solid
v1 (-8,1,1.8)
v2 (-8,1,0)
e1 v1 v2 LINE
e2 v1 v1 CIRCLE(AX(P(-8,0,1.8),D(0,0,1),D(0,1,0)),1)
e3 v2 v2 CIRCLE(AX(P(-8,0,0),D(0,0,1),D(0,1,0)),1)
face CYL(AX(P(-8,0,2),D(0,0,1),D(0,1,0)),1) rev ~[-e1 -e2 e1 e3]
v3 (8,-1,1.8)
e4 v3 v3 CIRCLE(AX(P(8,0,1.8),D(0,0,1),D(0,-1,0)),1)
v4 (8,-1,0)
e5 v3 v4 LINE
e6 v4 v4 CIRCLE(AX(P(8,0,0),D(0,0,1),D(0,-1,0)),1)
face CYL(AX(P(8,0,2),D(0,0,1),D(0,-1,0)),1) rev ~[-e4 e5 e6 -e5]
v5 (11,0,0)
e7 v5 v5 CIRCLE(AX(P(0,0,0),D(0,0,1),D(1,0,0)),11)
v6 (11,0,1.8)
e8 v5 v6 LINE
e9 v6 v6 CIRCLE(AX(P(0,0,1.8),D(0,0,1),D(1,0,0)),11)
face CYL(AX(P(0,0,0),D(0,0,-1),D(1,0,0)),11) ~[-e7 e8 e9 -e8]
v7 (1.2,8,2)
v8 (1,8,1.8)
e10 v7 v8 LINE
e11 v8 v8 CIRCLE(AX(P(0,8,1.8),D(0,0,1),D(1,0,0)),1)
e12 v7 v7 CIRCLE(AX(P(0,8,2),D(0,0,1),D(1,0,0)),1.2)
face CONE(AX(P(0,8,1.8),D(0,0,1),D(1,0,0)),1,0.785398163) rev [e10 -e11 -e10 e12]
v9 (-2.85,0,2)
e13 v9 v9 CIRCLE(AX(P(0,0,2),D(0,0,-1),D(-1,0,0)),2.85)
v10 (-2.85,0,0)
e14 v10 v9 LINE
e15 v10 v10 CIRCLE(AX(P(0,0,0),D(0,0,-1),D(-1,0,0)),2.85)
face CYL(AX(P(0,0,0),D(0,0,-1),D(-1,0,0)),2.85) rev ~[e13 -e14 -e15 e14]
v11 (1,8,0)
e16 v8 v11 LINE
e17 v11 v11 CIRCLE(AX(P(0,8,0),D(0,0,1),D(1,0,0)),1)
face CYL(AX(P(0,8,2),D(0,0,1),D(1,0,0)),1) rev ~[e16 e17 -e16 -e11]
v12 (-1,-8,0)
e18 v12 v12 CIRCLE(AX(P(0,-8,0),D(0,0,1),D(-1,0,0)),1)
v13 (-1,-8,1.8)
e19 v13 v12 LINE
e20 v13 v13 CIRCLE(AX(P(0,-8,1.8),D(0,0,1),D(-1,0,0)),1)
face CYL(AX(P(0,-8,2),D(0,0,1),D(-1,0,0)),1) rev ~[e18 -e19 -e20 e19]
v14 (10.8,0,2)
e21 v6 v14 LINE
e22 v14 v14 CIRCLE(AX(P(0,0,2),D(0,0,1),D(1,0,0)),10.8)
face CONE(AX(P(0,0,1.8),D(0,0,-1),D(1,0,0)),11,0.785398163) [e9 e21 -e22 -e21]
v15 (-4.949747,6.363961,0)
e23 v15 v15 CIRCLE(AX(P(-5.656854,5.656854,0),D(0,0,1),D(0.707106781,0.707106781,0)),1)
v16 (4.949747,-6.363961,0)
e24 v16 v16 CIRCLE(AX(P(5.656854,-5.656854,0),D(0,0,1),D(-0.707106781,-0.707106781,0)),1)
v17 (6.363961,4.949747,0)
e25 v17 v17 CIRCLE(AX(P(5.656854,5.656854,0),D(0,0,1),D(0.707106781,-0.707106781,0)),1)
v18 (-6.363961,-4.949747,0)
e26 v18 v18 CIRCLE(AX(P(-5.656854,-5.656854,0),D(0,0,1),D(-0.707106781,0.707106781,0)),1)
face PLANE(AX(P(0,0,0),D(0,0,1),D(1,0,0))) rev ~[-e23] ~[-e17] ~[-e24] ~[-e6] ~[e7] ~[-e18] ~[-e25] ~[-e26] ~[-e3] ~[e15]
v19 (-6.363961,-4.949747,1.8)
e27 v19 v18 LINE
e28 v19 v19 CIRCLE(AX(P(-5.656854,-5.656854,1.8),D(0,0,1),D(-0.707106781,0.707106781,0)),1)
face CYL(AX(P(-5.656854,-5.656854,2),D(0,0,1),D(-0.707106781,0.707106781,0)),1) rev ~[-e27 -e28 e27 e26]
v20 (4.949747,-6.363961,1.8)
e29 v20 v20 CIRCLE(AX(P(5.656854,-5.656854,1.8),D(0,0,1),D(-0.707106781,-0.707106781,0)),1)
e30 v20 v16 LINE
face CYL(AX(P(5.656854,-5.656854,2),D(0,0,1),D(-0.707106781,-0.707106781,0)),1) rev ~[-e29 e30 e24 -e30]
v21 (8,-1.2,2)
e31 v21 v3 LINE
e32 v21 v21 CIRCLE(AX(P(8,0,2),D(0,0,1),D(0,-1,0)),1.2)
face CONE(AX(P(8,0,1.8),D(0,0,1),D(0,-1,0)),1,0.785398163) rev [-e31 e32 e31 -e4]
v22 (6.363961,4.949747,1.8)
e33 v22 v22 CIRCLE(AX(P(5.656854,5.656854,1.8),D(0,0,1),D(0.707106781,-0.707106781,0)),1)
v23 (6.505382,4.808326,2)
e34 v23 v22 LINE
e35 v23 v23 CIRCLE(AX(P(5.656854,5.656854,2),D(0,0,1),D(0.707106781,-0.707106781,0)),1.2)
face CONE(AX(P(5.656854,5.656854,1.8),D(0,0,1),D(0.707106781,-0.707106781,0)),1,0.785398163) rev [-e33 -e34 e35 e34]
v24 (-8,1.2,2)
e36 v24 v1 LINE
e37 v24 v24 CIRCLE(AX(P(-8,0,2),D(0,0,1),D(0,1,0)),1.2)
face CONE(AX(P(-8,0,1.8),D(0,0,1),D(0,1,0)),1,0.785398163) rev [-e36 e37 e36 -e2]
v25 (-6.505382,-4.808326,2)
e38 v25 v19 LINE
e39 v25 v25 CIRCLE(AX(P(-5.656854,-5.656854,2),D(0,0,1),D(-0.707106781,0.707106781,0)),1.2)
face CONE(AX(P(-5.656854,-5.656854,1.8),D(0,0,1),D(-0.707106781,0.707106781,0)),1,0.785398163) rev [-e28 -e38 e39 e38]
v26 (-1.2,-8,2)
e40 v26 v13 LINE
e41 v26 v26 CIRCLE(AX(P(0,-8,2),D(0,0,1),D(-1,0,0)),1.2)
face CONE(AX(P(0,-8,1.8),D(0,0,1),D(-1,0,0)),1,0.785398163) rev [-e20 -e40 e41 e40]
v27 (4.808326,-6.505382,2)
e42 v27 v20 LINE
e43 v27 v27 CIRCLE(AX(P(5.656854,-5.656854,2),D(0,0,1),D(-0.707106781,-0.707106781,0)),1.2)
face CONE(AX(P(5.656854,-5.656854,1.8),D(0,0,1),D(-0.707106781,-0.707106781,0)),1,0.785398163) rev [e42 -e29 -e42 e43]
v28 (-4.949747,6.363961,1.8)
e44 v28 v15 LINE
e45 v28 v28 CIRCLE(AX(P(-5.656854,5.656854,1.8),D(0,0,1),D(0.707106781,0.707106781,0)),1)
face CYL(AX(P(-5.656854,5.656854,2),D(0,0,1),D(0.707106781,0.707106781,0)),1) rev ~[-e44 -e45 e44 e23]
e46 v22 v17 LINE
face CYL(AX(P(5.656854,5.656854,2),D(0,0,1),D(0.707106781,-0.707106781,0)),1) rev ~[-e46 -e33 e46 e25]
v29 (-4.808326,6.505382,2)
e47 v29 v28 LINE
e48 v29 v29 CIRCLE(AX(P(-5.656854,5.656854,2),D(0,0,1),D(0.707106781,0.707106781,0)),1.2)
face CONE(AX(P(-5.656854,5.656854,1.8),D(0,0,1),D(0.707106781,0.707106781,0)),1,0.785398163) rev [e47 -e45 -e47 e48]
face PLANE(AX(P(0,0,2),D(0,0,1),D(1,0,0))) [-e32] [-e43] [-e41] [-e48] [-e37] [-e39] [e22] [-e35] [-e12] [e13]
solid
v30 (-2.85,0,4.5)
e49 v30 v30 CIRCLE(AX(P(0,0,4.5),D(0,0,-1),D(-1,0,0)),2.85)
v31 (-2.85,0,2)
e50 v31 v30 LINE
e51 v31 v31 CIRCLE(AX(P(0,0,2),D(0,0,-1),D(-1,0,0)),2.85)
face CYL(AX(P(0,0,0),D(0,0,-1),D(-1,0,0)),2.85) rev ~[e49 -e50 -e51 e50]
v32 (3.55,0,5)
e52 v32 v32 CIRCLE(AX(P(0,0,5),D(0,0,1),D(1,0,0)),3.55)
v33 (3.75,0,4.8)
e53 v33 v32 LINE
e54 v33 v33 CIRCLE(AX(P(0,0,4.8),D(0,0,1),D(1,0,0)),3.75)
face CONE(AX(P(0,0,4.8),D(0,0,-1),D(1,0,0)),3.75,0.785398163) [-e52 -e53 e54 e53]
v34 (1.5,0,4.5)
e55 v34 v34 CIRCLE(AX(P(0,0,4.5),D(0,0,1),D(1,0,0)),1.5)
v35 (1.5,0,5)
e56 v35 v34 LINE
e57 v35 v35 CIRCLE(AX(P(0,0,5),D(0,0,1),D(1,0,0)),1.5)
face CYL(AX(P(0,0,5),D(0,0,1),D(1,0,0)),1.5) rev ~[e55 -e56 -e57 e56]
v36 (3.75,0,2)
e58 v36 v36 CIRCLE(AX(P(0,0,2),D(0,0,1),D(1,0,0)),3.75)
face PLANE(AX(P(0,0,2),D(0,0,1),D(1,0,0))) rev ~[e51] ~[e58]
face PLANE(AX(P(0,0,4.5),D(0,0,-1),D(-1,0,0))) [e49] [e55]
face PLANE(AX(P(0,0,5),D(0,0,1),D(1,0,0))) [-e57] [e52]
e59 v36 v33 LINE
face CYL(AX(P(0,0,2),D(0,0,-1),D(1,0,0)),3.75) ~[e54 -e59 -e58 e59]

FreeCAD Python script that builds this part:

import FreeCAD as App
import Part
import Sketcher
from FreeCAD import Vector
Q = App.Units.Quantity


def edges_at(feature, points):
    """Names of the edges that pass closest to the given points."""
    edges = feature.Shape.Edges
    near = lambda p: min(range(len(edges)), key=lambda i: edges[i].distToShape(Part.Vertex(*p))[0])
    return sorted({f"Edge{near(p) + 1}" for p in points})

doc = App.newDocument("Part")
body = doc.addObject("PartDesign::Body", "Body")

# Sketch on XY plane
sketch1 = body.newObject("Sketcher::SketchObject", "Sketch")
sketch1.AttachmentSupport = (doc.getObject("XY_Plane"), [""])
sketch1.MapMode = "FlatFace"
sketch1.addGeometry(Part.Circle(Vector(0, 0, 0), Vector(0, 0, 1), 11), False)
sketch1.addConstraint(Sketcher.Constraint("Coincident", 0, 3, -1, 1))
sketch1.addConstraint(Sketcher.Constraint("Diameter", 0, Q("22 mm")))
pad1 = body.newObject("PartDesign::Pad", "Pad")
pad1.Profile = sketch1
pad1.Length = 2
body2 = doc.addObject("PartDesign::Body", "Body001")

# Sketch on XY plane
sketch2 = body2.newObject("Sketcher::SketchObject", "Sketch001")
sketch2.AttachmentSupport = (doc.getObject("XY_Plane001"), [""])
sketch2.MapMode = "FlatFace"
sketch2.AttachmentOffset = App.Placement(Vector(0, 0, 2), App.Rotation())
sketch2.addGeometry(Part.Circle(Vector(0, 0, 0), Vector(0, 0, 1), 3.8), False)
sketch2.addConstraint(Sketcher.Constraint("Coincident", 0, 3, -1, 1))
sketch2.addConstraint(Sketcher.Constraint("Diameter", 0, Q("7.5 mm")))
pad2 = body2.newObject("PartDesign::Pad", "Pad001")
pad2.Profile = sketch2
pad2.Length = 3
body3 = doc.addObject("PartDesign::Body", "Body002")

# Sketch on XY plane
sketch3 = body3.newObject("Sketcher::SketchObject", "Sketch002")
sketch3.AttachmentSupport = (doc.getObject("XY_Plane002"), [""])
sketch3.MapMode = "FlatFace"
sketch3.addGeometry(Part.Circle(Vector(0, 0, 0), Vector(0, 0, 1), 2.9), False)
sketch3.addConstraint(Sketcher.Constraint("Coincident", 0, 3, -1, 1))
sketch3.addConstraint(Sketcher.Constraint("Diameter", 0, Q("5.7 mm")))
pad3 = body3.newObject("PartDesign::Pad", "Pad002")
pad3.Profile = sketch3
pad3.Length = 4.5
doc.recompute()

body4 = doc.addObject("PartDesign::Body", "Body003")
body4.BaseFeature = body3
boolean = body.newObject("PartDesign::Boolean", "Boolean")
boolean.Type = "Cut"
boolean.addObjects([body4])
doc.recompute()

# Sketch on XY plane
sketch4 = body.newObject("Sketcher::SketchObject", "Sketch003")
sketch4.AttachmentSupport = (doc.getObject("XY_Plane"), [""])
sketch4.MapMode = "FlatFace"
sketch4.AttachmentOffset = App.Placement(Vector(0, 0, 2), App.Rotation())
sketch4.addGeometry(Part.Circle(Vector(0, 8, 0), Vector(0, 0, 1), 1), False)
sketch4.addConstraint(Sketcher.Constraint("PointOnObject", 0, 3, -2))
sketch4.addConstraint(Sketcher.Constraint("Diameter", 0, Q("2 mm")))
sketch4.addConstraint(Sketcher.Constraint("DistanceY", -1, 1, 0, 3, Q("8 mm")))
pocket1 = body.newObject("PartDesign::Pocket", "Pocket")
pocket1.Profile = sketch4
pocket1.Type = "ThroughAll"
doc.recompute()

polarpattern = body.newObject("PartDesign::PolarPattern", "PolarPattern")
polarpattern.Originals = [pocket1]
polarpattern.Axis = (doc.getObject("Z_Axis"), [""])
polarpattern.Angle = 360
polarpattern.Occurrences = 8
body.Tip = polarpattern
doc.recompute()

chamfer = body.newObject("PartDesign::Chamfer", "Chamfer")
chamfer.Base = (polarpattern, edges_at(polarpattern, [(-11, 0, 2)]))
chamfer.Size = 0.2
doc.recompute()

chamfer2 = body.newObject("PartDesign::Chamfer", "Chamfer001")
chamfer2.Base = (chamfer, edges_at(chamfer, [(-1, 8, 2)]))
chamfer2.Size = 0.2
doc.recompute()

chamfer3 = body.newObject("PartDesign::Chamfer", "Chamfer002")
chamfer3.Base = (chamfer2, edges_at(chamfer2, [(8, 1, 2), (4.95, 6.364, 2)]))
chamfer3.Size = 0.2
doc.recompute()

chamfer4 = body.newObject("PartDesign::Chamfer", "Chamfer003")
chamfer4.Base = (chamfer3, edges_at(chamfer3, [
    (-6.364, 4.95, 2),
    (-8, -1, 2),
    (-4.95, -6.364, 2),
    (1, -8, 2),
    (6.364, -4.95, 2),
]))
chamfer4.Size = 0.2
doc.recompute()

boolean2 = body2.newObject("PartDesign::Boolean", "Boolean001")
boolean2.Type = "Cut"
boolean2.addObjects([body3])

# Sketch on XY plane
sketch5 = body2.newObject("Sketcher::SketchObject", "Sketch004")
sketch5.AttachmentSupport = (doc.getObject("XY_Plane001"), [""])
sketch5.MapMode = "FlatFace"
sketch5.AttachmentOffset = App.Placement(Vector(0, 0, 5), App.Rotation())
sketch5.addGeometry(Part.Circle(Vector(0, 0, 0), Vector(0, 0, 1), 1.5), False)
sketch5.addConstraint(Sketcher.Constraint("Coincident", 0, 3, -1, 1))
sketch5.addConstraint(Sketcher.Constraint("Diameter", 0, Q("3 mm")))
pocket2 = body2.newObject("PartDesign::Pocket", "Pocket001")
pocket2.Profile = sketch5
pocket2.Type = "ThroughAll"
doc.recompute()

chamfer5 = body2.newObject("PartDesign::Chamfer", "Chamfer004")
chamfer5.Base = (pocket2, edges_at(pocket2, [(-3.75, 0, 5)]))
chamfer5.Size = 0.2

doc.recompute()
